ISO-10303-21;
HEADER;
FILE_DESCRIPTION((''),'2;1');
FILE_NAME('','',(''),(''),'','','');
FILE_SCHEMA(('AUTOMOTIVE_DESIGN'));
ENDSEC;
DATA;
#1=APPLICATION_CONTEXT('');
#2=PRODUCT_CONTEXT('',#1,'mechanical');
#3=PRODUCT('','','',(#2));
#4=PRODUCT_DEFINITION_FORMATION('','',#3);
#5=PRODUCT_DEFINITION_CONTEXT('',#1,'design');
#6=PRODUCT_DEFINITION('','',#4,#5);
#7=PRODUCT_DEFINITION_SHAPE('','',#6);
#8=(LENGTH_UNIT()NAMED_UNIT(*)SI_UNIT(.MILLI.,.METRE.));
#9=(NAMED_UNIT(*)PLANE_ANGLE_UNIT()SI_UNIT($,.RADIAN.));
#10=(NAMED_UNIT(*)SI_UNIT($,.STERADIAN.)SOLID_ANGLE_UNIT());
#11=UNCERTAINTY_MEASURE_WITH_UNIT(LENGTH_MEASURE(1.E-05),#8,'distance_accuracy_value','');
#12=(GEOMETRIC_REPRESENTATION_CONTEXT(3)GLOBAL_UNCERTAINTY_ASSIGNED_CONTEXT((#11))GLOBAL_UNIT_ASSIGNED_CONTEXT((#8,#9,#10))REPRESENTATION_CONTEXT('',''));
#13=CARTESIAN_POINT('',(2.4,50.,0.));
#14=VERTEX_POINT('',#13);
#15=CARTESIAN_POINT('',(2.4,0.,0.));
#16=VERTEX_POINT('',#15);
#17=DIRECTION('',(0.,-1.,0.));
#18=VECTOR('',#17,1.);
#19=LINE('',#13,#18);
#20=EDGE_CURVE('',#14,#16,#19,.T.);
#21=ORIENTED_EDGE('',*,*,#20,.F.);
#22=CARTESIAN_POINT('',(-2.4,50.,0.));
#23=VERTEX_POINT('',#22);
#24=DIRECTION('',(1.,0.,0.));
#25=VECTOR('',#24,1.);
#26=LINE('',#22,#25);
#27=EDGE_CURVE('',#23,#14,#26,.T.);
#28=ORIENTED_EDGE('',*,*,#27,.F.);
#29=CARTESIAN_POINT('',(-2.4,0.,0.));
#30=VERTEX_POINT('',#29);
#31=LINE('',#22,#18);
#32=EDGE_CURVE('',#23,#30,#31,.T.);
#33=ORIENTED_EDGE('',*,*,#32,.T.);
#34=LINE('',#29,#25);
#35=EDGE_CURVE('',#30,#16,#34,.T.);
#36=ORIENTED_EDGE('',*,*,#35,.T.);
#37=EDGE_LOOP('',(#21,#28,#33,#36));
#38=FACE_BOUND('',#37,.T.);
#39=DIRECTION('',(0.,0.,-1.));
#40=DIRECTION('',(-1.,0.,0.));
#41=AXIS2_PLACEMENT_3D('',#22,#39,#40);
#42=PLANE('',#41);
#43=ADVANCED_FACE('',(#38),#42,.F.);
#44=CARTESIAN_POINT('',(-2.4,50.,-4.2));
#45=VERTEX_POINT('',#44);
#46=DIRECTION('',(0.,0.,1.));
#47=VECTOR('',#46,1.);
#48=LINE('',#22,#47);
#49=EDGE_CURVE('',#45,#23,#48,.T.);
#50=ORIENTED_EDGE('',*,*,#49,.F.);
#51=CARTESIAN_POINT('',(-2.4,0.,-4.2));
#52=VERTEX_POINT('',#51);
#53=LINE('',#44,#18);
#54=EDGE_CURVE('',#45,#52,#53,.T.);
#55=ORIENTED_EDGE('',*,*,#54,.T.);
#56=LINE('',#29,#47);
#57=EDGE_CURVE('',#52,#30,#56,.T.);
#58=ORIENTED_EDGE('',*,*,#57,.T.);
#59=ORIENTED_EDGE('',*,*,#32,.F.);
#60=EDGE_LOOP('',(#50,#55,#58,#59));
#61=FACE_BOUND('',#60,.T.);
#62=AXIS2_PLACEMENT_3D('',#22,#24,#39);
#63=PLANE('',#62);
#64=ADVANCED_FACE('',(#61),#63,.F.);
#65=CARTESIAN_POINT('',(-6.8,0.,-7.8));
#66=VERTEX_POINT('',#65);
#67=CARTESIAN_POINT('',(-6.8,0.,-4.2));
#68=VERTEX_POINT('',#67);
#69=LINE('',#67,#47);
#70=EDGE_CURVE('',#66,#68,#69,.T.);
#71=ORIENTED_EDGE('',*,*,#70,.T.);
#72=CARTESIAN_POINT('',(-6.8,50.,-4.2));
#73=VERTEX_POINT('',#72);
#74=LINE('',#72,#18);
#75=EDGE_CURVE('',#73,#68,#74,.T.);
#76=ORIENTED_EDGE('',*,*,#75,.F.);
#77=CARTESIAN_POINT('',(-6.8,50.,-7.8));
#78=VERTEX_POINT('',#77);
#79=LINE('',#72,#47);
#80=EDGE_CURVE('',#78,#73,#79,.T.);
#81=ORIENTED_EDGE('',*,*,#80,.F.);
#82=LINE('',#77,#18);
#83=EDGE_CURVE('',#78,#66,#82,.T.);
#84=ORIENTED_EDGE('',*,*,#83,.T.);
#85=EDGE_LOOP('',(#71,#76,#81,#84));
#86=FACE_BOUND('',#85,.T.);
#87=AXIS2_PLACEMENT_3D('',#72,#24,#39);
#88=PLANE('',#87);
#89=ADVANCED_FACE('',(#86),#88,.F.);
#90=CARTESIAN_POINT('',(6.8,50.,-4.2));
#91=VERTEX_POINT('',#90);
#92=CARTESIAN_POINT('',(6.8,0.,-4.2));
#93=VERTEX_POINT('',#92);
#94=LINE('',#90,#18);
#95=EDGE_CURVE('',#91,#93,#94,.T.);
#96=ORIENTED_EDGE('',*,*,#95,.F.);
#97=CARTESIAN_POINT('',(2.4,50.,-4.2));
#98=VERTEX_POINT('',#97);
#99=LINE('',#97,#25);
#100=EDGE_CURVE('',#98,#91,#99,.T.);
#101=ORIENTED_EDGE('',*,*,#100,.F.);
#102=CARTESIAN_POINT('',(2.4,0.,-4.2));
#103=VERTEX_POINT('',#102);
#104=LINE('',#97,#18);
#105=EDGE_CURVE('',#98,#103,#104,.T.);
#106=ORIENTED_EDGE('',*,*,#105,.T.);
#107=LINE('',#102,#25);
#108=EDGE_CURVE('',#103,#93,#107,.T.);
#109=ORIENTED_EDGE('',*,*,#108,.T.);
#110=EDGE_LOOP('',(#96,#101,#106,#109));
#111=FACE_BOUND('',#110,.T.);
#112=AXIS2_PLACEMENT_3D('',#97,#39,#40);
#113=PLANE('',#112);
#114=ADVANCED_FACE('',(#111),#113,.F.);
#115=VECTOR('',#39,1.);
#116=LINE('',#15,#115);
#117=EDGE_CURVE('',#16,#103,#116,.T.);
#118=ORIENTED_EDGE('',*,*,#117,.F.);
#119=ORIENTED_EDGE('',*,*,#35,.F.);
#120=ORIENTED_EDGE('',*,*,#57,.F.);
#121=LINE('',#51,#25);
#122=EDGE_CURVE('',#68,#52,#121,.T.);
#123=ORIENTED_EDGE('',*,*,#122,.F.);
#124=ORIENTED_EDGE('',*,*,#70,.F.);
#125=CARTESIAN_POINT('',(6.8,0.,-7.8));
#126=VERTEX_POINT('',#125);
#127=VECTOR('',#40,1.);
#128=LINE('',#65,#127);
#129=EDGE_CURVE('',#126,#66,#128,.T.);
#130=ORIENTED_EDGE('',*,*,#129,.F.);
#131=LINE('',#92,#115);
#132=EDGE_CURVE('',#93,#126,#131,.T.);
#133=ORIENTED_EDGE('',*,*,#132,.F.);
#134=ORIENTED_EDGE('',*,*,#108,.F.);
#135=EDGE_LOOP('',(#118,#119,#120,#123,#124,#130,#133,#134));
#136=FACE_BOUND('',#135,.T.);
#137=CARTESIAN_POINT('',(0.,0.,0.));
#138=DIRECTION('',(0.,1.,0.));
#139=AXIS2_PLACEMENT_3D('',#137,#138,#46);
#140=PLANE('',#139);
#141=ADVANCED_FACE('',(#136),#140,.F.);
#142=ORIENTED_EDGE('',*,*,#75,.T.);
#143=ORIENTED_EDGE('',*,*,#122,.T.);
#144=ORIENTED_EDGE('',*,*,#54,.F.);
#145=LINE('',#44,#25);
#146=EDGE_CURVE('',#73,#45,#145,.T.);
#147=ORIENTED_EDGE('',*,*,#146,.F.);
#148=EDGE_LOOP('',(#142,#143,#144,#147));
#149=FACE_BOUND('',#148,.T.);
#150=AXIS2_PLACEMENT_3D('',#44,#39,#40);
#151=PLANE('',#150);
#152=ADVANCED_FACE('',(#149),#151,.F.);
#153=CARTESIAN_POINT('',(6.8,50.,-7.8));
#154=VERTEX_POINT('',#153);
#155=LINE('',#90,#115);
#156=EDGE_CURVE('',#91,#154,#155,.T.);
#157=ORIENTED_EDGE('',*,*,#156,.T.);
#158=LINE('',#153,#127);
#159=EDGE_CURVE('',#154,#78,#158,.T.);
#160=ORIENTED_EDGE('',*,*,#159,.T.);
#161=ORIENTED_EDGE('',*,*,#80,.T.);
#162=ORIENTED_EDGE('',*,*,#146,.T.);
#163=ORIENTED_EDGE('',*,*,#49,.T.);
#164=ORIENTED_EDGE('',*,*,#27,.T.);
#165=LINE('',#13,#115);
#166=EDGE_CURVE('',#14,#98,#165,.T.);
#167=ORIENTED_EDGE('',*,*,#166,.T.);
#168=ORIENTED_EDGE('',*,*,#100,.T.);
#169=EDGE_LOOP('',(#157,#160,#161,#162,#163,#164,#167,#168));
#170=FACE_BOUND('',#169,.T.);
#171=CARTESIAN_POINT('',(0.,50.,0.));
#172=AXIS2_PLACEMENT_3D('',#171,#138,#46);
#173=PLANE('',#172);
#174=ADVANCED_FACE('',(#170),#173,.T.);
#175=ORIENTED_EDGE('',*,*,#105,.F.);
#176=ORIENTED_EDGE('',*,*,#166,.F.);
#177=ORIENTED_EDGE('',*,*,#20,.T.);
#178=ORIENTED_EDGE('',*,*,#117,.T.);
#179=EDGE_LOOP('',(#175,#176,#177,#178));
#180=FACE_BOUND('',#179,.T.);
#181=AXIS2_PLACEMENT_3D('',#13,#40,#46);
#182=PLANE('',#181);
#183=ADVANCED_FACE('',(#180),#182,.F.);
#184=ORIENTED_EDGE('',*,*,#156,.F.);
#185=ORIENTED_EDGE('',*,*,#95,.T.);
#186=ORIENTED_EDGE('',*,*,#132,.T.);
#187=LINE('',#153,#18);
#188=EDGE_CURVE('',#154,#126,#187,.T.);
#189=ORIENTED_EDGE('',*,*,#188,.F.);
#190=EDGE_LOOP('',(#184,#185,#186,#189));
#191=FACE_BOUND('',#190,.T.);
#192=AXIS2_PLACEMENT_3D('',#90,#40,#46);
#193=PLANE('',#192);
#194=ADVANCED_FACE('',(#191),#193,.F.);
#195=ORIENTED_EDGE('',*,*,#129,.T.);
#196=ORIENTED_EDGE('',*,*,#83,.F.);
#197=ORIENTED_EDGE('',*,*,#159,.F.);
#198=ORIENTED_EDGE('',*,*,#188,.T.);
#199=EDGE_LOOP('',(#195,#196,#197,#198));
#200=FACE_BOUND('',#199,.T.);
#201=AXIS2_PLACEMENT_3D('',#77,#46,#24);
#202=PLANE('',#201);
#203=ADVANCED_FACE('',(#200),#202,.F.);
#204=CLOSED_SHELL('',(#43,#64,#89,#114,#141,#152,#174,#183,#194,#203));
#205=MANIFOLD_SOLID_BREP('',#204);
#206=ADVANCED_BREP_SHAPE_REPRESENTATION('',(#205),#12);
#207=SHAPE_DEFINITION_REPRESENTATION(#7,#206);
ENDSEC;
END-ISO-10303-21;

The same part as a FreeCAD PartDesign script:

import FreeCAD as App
import Part
import Sketcher
from FreeCAD import Vector


def add_polygon(sketch, points):
    """Adds a closed chain of lines whose ends are joined by coincident constraints."""
    first, n = sketch.GeometryCount, len(points)
    for a, b in zip(points, points[1:] + points[:1]):
        sketch.addGeometry(Part.LineSegment(App.Vector(*a, 0), App.Vector(*b, 0)), False)
    for i in range(n):
        sketch.addConstraint(Sketcher.Constraint("Coincident", first + i, 2, first + (i + 1) % n, 1))

doc = App.newDocument("Part")
body = doc.addObject("PartDesign::Body", "Body")

# Sketch on XZ plane
sketch1 = doc.addObject("Sketcher::SketchObject", "Sketch")
body.addObject(sketch1)
sketch1.AttachmentSupport = (doc.XZ_Plane, [""])
sketch1.MapMode = "FlatFace"
add_polygon(sketch1, [(-2.4, -4.2), (-2.4, 0), (2.4, 0), (2.4, -4.2), (6.8, -4.2), (6.8, -7.8), (-6.8, -7.8), (-6.8, -4.2)])  # lines 0-7
sketch1.addConstraint([
    Sketcher.Constraint("Vertical", 0),
    Sketcher.Constraint("Horizontal", 1),
    Sketcher.Constraint("Vertical", 2),
    Sketcher.Constraint("Horizontal", 3),
    Sketcher.Constraint("Vertical", 4),
    Sketcher.Constraint("Horizontal", 5),
    Sketcher.Constraint("Vertical", 6),
    Sketcher.Constraint("Horizontal", 7),
    Sketcher.Constraint("Symmetric", 0, 2, 1, 2, -1, 1),
    Sketcher.Constraint("Symmetric", 3, 2, 6, 2, -2),
    Sketcher.Constraint("DistanceX", 1, 1, 1, 2, 4.8),
    Sketcher.Constraint("DistanceX", 3, 1, 3, 2, 4.4),
    Sketcher.Constraint("DistanceY", 0, 1, 0, 2, 4.2),
    Sketcher.Constraint("DistanceY", 4, 2, 4, 1, 3.6),
])
pad1 = doc.addObject("PartDesign::Pad", "Pad")
body.addObject(pad1)
pad1.Profile = sketch1
pad1.Length = 50
pad1.Reversed = True

doc.recompute()
